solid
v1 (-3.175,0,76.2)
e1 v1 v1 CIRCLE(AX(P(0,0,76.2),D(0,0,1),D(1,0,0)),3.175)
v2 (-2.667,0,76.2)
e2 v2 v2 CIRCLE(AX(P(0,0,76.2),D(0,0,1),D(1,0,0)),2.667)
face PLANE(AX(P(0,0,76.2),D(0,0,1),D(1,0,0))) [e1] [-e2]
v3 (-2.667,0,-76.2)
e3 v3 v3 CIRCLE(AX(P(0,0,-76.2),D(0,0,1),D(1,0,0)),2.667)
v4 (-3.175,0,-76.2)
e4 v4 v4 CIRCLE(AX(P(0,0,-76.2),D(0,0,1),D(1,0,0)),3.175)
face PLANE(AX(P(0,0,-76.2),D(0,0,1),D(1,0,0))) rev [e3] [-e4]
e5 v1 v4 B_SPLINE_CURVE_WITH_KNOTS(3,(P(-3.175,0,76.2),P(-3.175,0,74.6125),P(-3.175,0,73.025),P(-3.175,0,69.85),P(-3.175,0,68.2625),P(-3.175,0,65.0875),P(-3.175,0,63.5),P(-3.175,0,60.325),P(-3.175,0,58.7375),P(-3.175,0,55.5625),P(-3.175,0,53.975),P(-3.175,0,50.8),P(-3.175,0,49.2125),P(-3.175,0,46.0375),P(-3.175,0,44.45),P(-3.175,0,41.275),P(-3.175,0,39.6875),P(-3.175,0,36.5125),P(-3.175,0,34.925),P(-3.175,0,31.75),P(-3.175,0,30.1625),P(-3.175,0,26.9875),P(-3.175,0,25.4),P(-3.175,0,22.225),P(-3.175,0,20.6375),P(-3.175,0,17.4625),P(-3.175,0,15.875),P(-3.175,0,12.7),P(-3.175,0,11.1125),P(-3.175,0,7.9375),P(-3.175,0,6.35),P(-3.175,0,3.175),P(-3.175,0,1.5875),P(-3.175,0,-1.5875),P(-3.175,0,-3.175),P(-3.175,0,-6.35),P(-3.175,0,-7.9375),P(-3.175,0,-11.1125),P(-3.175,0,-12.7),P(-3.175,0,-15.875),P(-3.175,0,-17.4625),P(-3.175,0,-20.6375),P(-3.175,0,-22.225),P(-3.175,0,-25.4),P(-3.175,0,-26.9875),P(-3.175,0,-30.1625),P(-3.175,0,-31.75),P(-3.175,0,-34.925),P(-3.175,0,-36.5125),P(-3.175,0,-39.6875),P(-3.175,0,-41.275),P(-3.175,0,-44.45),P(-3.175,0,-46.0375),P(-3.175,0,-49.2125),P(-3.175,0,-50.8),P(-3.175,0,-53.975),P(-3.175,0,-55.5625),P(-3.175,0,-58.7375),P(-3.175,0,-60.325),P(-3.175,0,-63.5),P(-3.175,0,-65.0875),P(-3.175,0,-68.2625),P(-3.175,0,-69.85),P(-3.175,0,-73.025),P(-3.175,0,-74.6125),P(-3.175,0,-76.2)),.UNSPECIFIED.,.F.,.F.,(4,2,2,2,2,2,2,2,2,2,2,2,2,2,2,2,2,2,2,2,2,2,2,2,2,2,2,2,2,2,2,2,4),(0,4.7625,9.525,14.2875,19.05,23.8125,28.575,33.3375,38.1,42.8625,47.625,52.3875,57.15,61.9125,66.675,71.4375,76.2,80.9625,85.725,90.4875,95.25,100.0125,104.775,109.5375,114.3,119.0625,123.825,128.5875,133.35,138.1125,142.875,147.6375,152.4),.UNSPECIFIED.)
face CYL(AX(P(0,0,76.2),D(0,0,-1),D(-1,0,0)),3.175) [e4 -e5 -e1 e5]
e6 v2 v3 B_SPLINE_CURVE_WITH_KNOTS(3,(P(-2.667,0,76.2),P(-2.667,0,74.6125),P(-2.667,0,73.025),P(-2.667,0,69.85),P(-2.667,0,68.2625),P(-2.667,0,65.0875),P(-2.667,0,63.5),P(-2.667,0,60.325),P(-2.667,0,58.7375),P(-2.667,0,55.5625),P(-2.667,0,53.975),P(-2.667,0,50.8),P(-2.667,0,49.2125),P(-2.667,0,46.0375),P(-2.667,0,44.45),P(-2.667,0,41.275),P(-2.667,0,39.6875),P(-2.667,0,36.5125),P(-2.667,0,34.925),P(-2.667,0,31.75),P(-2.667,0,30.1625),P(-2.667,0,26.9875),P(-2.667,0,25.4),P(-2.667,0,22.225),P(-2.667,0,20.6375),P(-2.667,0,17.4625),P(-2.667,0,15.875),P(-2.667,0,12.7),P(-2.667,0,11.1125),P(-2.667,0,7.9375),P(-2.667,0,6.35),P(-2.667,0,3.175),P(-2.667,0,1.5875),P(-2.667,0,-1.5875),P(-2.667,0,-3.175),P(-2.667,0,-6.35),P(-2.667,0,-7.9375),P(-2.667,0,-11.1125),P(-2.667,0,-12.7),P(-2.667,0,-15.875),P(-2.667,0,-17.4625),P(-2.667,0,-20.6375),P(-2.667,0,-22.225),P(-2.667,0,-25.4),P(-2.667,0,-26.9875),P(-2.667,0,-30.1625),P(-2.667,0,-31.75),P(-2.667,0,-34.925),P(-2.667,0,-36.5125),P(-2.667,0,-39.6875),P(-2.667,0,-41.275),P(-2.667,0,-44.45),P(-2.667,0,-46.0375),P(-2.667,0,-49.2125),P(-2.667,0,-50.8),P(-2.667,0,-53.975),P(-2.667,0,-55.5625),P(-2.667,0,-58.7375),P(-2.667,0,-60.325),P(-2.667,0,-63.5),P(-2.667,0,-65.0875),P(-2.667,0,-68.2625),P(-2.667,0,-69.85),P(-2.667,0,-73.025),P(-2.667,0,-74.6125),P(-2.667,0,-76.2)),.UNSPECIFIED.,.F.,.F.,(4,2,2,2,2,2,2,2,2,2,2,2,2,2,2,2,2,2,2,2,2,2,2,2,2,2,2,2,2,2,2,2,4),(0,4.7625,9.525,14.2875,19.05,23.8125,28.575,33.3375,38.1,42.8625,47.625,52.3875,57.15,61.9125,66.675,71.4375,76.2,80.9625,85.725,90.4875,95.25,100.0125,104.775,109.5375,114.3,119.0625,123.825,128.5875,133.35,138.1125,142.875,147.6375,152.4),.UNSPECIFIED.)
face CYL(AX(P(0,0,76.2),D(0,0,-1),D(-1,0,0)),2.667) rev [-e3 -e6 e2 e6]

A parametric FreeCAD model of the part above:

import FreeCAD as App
import Part
import Sketcher

V = App.Vector
Q = App.Units.Quantity

doc = App.newDocument("Part")
body = doc.addObject("PartDesign::Body", "Body")

# Sketch on XY plane
sketch1 = doc.addObject("Sketcher::SketchObject", "Sketch")
body.addObject(sketch1)
sketch1.AttachmentSupport = (doc.XY_Plane, [""])
sketch1.MapMode = "FlatFace"
sketch1.addGeometry([
    Part.Circle(V(0, 0, 0), V(0, 0, 1), 3.2),
    Part.Circle(V(0, 0, 0), V(0, 0, 1), 2.7),
], False)
sketch1.addConstraint([
    Sketcher.Constraint("Coincident", 0, 3, -1, 1),
    Sketcher.Constraint("Coincident", 1, 3, -1, 1),
    Sketcher.Constraint("Diameter", 0, Q("0.25 in")),
    Sketcher.Constraint("Diameter", 1, Q("0.21 in")),
])
pad1 = doc.addObject("PartDesign::Pad", "Pad")
body.addObject(pad1)
pad1.Profile = sketch1
pad1.Length = Q("6 in")
pad1.Midplane = True

doc.recompute()
